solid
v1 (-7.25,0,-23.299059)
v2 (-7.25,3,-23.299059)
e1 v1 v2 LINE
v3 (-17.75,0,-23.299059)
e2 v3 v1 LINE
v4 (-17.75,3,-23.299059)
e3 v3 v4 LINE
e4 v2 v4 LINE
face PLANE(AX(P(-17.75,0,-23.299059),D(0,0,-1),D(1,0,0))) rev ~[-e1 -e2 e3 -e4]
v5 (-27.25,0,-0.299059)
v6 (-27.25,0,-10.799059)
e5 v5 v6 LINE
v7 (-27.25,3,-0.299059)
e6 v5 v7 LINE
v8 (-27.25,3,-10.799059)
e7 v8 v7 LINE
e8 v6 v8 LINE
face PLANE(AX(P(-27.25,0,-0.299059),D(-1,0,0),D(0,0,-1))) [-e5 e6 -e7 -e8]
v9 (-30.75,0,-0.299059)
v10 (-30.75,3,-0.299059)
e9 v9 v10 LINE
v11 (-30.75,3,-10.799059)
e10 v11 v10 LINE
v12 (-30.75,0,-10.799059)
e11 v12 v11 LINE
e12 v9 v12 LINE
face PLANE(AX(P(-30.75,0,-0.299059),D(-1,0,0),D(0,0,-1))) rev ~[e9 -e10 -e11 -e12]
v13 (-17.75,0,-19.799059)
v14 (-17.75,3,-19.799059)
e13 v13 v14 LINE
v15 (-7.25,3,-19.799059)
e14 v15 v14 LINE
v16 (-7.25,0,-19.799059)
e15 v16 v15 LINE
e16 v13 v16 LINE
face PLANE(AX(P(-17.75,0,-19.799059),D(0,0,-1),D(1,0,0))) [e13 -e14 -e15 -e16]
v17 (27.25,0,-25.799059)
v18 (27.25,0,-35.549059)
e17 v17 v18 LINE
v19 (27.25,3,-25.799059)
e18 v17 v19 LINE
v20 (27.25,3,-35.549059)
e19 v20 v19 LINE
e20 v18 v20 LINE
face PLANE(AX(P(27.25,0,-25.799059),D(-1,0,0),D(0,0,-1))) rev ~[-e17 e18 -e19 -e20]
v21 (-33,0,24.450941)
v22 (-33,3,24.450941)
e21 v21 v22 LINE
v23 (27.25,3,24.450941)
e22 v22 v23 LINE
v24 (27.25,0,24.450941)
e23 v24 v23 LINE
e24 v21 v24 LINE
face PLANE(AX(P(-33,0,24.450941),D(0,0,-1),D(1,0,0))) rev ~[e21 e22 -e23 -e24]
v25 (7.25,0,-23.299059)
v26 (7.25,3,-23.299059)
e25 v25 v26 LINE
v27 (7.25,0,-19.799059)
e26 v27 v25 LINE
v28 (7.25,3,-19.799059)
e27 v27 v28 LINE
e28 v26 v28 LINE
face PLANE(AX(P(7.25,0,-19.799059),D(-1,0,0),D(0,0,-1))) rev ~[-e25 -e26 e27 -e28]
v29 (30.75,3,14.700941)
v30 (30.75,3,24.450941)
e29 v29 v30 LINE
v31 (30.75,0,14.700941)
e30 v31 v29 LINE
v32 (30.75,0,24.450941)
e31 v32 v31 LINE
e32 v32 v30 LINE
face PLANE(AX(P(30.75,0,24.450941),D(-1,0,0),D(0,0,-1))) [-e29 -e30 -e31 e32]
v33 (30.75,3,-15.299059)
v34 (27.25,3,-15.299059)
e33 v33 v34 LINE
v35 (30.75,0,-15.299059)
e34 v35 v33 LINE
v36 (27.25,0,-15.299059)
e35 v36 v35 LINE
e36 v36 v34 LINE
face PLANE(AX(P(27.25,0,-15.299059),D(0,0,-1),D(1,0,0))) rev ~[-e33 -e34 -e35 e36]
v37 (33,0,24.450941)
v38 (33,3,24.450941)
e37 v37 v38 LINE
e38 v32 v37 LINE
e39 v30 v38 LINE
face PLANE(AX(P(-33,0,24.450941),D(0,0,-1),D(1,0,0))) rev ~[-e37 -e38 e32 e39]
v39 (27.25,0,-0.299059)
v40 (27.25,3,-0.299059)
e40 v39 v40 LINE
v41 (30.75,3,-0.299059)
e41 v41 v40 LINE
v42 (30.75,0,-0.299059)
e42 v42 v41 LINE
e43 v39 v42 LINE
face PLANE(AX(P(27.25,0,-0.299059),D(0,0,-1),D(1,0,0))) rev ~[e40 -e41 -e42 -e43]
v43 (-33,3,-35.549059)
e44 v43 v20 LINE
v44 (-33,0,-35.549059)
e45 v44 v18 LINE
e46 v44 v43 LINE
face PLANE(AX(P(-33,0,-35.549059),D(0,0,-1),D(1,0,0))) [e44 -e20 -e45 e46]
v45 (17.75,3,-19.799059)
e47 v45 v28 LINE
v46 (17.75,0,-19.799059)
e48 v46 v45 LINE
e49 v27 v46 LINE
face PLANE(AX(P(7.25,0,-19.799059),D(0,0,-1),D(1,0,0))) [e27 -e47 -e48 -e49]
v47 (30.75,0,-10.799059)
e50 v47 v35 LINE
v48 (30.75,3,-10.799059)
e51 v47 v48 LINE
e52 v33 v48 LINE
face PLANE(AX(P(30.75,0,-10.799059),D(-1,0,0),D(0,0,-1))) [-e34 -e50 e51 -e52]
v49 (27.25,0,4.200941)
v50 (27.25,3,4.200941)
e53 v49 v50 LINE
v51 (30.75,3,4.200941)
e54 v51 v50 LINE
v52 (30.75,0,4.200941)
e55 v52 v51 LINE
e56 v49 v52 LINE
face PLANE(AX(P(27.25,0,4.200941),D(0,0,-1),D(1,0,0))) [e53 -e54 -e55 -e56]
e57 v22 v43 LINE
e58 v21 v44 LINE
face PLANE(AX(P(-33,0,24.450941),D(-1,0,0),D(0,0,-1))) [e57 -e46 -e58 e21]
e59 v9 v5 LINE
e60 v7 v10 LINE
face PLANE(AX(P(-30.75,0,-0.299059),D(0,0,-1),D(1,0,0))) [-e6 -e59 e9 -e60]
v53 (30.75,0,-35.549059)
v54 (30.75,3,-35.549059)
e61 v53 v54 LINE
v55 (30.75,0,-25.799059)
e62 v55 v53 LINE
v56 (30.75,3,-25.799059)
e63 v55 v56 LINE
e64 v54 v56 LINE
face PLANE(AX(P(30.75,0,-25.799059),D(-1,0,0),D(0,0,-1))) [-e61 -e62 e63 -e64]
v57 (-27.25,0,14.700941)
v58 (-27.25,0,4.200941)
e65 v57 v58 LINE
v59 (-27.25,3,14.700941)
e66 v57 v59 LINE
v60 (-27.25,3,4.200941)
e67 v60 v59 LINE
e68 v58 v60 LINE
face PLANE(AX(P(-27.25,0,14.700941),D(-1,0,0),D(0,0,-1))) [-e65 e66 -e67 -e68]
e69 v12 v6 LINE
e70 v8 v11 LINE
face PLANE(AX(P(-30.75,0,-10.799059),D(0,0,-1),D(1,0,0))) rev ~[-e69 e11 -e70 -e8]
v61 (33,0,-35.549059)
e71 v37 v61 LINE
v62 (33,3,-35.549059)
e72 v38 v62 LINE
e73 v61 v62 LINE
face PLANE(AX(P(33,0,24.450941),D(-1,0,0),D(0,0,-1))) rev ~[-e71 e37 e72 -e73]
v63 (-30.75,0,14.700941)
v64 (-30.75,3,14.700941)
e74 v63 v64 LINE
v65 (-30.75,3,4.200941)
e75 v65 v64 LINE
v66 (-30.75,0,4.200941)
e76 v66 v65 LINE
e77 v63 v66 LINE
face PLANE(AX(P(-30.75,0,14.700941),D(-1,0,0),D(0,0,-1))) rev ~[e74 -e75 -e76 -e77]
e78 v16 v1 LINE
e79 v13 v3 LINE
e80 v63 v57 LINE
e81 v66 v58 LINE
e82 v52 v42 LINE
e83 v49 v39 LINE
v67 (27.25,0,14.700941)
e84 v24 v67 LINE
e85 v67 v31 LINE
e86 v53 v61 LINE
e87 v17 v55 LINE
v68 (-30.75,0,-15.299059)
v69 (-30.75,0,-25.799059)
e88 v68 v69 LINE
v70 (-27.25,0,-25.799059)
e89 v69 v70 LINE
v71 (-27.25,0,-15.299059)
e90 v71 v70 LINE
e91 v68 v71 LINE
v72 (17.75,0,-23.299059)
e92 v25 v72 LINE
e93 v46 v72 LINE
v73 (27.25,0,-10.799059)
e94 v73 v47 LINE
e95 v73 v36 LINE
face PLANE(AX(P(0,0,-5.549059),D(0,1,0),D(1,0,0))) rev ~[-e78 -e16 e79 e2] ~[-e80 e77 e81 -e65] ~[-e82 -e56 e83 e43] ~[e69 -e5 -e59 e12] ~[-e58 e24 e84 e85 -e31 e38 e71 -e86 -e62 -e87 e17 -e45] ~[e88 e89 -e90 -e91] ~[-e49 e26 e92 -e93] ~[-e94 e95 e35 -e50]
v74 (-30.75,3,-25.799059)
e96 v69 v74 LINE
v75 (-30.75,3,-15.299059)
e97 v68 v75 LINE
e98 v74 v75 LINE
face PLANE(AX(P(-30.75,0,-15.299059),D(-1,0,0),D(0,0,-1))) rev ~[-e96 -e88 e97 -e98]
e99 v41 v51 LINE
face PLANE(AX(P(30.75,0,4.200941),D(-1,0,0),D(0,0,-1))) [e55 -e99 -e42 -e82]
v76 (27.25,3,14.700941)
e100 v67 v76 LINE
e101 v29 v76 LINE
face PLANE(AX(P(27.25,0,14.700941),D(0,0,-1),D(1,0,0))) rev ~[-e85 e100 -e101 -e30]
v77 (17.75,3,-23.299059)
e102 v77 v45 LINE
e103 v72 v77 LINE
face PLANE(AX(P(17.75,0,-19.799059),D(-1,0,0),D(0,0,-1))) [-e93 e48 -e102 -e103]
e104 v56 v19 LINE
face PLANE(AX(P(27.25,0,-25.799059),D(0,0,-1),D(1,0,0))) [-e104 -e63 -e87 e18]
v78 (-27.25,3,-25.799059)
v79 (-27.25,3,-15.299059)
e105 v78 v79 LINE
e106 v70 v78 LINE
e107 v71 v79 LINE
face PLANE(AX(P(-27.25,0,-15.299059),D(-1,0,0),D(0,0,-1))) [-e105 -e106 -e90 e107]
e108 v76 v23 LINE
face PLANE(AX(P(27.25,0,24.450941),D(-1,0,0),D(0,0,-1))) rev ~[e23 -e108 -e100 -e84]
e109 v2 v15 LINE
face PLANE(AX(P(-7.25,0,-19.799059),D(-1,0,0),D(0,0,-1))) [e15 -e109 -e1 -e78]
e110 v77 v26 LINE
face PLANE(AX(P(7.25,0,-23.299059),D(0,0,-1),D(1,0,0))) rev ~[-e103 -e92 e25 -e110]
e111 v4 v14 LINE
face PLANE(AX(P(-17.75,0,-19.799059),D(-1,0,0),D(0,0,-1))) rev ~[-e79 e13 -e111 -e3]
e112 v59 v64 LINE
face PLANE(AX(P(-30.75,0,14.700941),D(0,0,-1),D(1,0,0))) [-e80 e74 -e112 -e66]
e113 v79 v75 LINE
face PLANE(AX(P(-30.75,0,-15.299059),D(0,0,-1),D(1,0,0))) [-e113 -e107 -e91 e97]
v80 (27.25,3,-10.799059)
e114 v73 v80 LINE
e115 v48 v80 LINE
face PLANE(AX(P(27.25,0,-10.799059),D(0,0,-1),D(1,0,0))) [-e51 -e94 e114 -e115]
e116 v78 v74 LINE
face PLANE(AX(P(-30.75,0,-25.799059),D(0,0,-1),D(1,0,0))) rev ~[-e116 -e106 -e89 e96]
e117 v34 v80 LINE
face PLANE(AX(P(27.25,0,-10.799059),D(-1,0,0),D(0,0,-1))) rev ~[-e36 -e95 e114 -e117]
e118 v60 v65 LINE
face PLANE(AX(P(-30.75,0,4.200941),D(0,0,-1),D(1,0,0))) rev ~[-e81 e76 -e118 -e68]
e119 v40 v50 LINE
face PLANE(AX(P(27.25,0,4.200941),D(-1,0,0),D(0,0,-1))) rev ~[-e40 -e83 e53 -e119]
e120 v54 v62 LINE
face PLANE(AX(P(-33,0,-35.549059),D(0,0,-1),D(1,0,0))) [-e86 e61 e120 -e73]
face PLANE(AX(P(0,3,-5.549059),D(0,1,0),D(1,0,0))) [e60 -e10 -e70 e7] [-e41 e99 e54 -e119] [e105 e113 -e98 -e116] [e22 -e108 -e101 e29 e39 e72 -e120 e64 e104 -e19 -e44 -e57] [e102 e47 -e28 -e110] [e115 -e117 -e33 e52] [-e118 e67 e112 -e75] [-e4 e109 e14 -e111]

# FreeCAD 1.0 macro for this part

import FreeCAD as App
import Part
import Sketcher

V = App.Vector


def add_polygon(sketch, points):
    """Adds a closed chain of lines whose ends are joined by coincident constraints."""
    first, n = sketch.GeometryCount, len(points)
    for a, b in zip(points, points[1:] + points[:1]):
        sketch.addGeometry(Part.LineSegment(App.Vector(*a, 0), App.Vector(*b, 0)), False)
    for i in range(n):
        sketch.addConstraint(Sketcher.Constraint("Coincident", first + i, 2, first + (i + 1) % n, 1))

doc = App.newDocument("Part")
params = doc.addObject("Spreadsheet::Sheet", "Params")
for row, (alias, value) in enumerate([
    ("sketch1_width", "66 mm"),
    ("sketch1_height", "60 mm"),
    ("pad1_length", "3 mm"),
    ("sketch2_width", "3.5 mm"),
    ("sketch2_width2", "10.5 mm"),
    ("sketch2_height", "4.5 mm"),
    ("sketch2_height2", "9.75 mm"),
], start=1):
    params.set(f"A{row}", alias)
    params.set(f"B{row}", "=" + value)
    params.setAlias(f"B{row}", alias)

body = doc.addObject("PartDesign::Body", "Body")

# Sketch on XZ plane
sketch1 = doc.addObject("Sketcher::SketchObject", "Sketch")
body.addObject(sketch1)
sketch1.AttachmentSupport = (doc.XZ_Plane, [""])
sketch1.MapMode = "FlatFace"
add_polygon(sketch1, [(-33, -35.549059), (-33, 24.450941), (33, 24.450941), (33, -35.549059)])  # lines 0-3
sketch1.addConstraint([
    Sketcher.Constraint("Vertical", 0),
    Sketcher.Constraint("Horizontal", 1),
    Sketcher.Constraint("Vertical", 2),
    Sketcher.Constraint("Horizontal", 3),
    Sketcher.Constraint("DistanceX", 1, 1, 1, 2, 66.0),
    Sketcher.Constraint("DistanceY", 0, 1, 0, 2, 60.0),
    Sketcher.Constraint("DistanceX", 0, 2, -1, 1, 33.0),
    Sketcher.Constraint("DistanceY", -1, 1, 0, 2, 24.450941),
])
sketch1.setExpression("Constraints[8]", "Params.sketch1_width")
sketch1.setExpression("Constraints[9]", "Params.sketch1_height")
pad1 = doc.addObject("PartDesign::Pad", "Pad")
body.addObject(pad1)
pad1.Profile = sketch1
pad1.setExpression("Length", "Params.pad1_length")
pad1.Reversed = True

# Sketch on XZ plane
sketch2 = doc.addObject("Sketcher::SketchObject", "Sketch001")
body.addObject(sketch2)
sketch2.AttachmentSupport = (doc.XZ_Plane, [""])
sketch2.MapMode = "FlatFace"
add_polygon(sketch2, [(-30.75, -10.799059), (-30.75, -0.299059), (-27.25, -0.299059), (-27.25, -10.799059)])  # lines 0-3
add_polygon(sketch2, [(-30.75, -25.799059), (-30.75, -15.299059), (-27.25, -15.299059), (-27.25, -25.799059)])  # lines 4-7
add_polygon(sketch2, [(-30.75, 4.200941), (-30.75, 14.700941), (-27.25, 14.700941), (-27.25, 4.200941)])  # lines 8-11
add_polygon(sketch2, [(7.25, -23.299059), (7.25, -19.799059), (17.75, -19.799059), (17.75, -23.299059)])  # lines 12-15
add_polygon(sketch2, [(27.25, 14.700941), (27.25, 24.450941), (30.75, 24.450941), (30.75, 14.700941)])  # lines 16-19
add_polygon(sketch2, [(27.25, -15.299059), (27.25, -10.799059), (30.75, -10.799059), (30.75, -15.299059)])  # lines 20-23
add_polygon(sketch2, [(27.25, -0.299059), (27.25, 4.200941), (30.75, 4.200941), (30.75, -0.299059)])  # lines 24-27
add_polygon(sketch2, [(27.25, -35.549059), (27.25, -25.799059), (30.75, -25.799059), (30.75, -35.549059)])  # lines 28-31
add_polygon(sketch2, [(-17.75, -23.299059), (-17.75, -19.799059), (-7.25, -19.799059), (-7.25, -23.299059)])  # lines 32-35
sketch2.addConstraint([
    Sketcher.Constraint("Vertical", 0),
    Sketcher.Constraint("Horizontal", 1),
    Sketcher.Constraint("Vertical", 2),
    Sketcher.Constraint("Horizontal", 3),
    Sketcher.Constraint("Vertical", 4),
    Sketcher.Constraint("Horizontal", 5),
    Sketcher.Constraint("Vertical", 6),
    Sketcher.Constraint("Horizontal", 7),
    Sketcher.Constraint("Vertical", 8),
    Sketcher.Constraint("Horizontal", 9),
    Sketcher.Constraint("Vertical", 10),
    Sketcher.Constraint("Horizontal", 11),
    Sketcher.Constraint("Vertical", 12),
    Sketcher.Constraint("Horizontal", 13),
    Sketcher.Constraint("Vertical", 14),
    Sketcher.Constraint("Horizontal", 15),
    Sketcher.Constraint("Vertical", 16),
    Sketcher.Constraint("Horizontal", 17),
    Sketcher.Constraint("Vertical", 18),
    Sketcher.Constraint("Horizontal", 19),
    Sketcher.Constraint("Vertical", 20),
    Sketcher.Constraint("Horizontal", 21),
    Sketcher.Constraint("Vertical", 22),
    Sketcher.Constraint("Horizontal", 23),
    Sketcher.Constraint("Vertical", 24),
    Sketcher.Constraint("Horizontal", 25),
    Sketcher.Constraint("Vertical", 26),
    Sketcher.Constraint("Horizontal", 27),
    Sketcher.Constraint("Vertical", 28),
    Sketcher.Constraint("Horizontal", 29),
    Sketcher.Constraint("Vertical", 30),
    Sketcher.Constraint("Horizontal", 31),
    Sketcher.Constraint("Vertical", 32),
    Sketcher.Constraint("Horizontal", 33),
    Sketcher.Constraint("Vertical", 34),
    Sketcher.Constraint("Horizontal", 35),
    Sketcher.Constraint("Symmetric", 8, 2, 18, 2, -2),
    Sketcher.Constraint("Symmetric", 2, 2, 20, 2, -2),
    Sketcher.Constraint("Symmetric", 4, 2, 22, 2, -2),
    Sketcher.Constraint("Symmetric", 10, 2, 24, 2, -2),
    Sketcher.Constraint("Symmetric", 0, 2, 26, 2, -2),
    Sketcher.Constraint("Symmetric", 6, 2, 28, 2, -2),
    Sketcher.Constraint("Symmetric", 13, 2, 32, 2, -2),
    Sketcher.Constraint("Symmetric", 15, 2, 34, 2, -2),
    Sketcher.Constraint("Vertical", 3, 2, 4, 2),
    Sketcher.Constraint("Vertical", 2, 2, 5, 2),
    Sketcher.Constraint("Vertical", 7, 2, 8, 2),
    Sketcher.Constraint("Vertical", 6, 2, 9, 2),
    Sketcher.Constraint("Vertical", 19, 2, 20, 2),
    Sketcher.Constraint("Vertical", 26, 2, 29, 2),
    Sketcher.Constraint("Equal", 35, 0),
    Sketcher.Constraint("Equal", 2, 4),
    Sketcher.Constraint("Equal", 6, 8),
    Sketcher.Constraint("Equal", 31, 12),
    Sketcher.Constraint("Equal", 22, 24),
    Sketcher.Constraint("Equal", 18, 28),
    Sketcher.Constraint("DistanceX", 1, 1, 1, 2, 3.5),
    Sketcher.Constraint("DistanceX", 13, 1, 13, 2, 10.5),
    Sketcher.Constraint("DistanceY", 20, 1, 20, 2, 4.5),
    Sketcher.Constraint("DistanceY", 6, 2, 12, 2, 6.0),
    Sketcher.Constraint("DistanceX", 4, 2, 12, 2, 38.0),
    Sketcher.Constraint("DistanceX", 12, 2, 16, 2, 20.0),
    Sketcher.Constraint("DistanceY", 16, 1, 16, 2, 9.75),
    Sketcher.Constraint("DistanceY", 0, 2, -1, 1, 0.299059),
])
sketch2.setExpression("Constraints[92]", "Params.sketch2_width")
sketch2.setExpression("Constraints[93]", "Params.sketch2_width2")
sketch2.setExpression("Constraints[94]", "Params.sketch2_height")
sketch2.setExpression("Constraints[98]", "Params.sketch2_height2")
pocket1 = doc.addObject("PartDesign::Pocket", "Pocket")
body.addObject(pocket1)
pocket1.Profile = sketch2
pocket1.Type = "ThroughAll"

doc.recompute()
